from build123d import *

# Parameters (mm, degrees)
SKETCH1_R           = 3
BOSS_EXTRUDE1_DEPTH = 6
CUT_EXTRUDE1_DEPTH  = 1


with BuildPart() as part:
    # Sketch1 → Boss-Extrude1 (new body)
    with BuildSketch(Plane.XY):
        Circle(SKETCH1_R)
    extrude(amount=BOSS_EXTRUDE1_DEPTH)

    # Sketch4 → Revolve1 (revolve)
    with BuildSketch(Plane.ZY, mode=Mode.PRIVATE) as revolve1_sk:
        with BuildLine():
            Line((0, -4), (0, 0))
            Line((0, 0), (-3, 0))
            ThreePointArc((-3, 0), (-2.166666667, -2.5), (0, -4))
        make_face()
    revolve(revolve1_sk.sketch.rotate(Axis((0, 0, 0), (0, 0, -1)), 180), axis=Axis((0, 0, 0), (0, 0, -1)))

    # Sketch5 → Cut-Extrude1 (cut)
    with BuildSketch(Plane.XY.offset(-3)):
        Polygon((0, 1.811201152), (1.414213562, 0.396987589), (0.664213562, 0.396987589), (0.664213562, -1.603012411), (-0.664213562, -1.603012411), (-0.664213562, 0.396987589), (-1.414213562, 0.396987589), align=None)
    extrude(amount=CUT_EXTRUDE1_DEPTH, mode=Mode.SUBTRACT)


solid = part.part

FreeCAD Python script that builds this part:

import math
import FreeCAD as App
import Part
import Sketcher

doc = App.newDocument("Part")
body = doc.addObject("PartDesign::Body", "Body")

# Sketch on XY plane
sketch1 = doc.addObject("Sketcher::SketchObject", "Sketch")
body.addObject(sketch1)
sketch1.AttachmentSupport = (doc.XY_Plane, [""])
sketch1.MapMode = "FlatFace"
sketch1.addGeometry(Part.Circle(App.Vector(0, 0, 0), App.Vector(0, 0, 1), 3), False)
sketch1.addConstraint([
    Sketcher.Constraint("Coincident", 0, 3, -1, 1),
    Sketcher.Constraint("Diameter", 0, 6.0),
])
pad1 = doc.addObject("PartDesign::Pad", "Pad")
body.addObject(pad1)
pad1.Profile = sketch1
pad1.Length = 6

# Sketch on YZ plane
sketch2 = doc.addObject("Sketcher::SketchObject", "Sketch001")
body.addObject(sketch2)
sketch2.AttachmentSupport = (doc.YZ_Plane, [""])
sketch2.MapMode = "FlatFace"
sketch2.addGeometry([
    Part.LineSegment(App.Vector(-4, 0, 0), App.Vector(0, 0, 0)),
    Part.LineSegment(App.Vector(0, 0, 0), App.Vector(0, -3, 0)),
    Part.ArcOfCircle(Part.Circle(App.Vector(0, 1.2, 0), App.Vector(0, 0, 1), 4.2), math.radians(-164), math.radians(-90)),
], False)
sketch2.addConstraint([
    Sketcher.Constraint("Coincident", 0, 2, 1, 1),
    Sketcher.Constraint("Coincident", 1, 2, 2, 2),
    Sketcher.Constraint("Coincident", 2, 1, 0, 1),
    Sketcher.Constraint("Horizontal", 0),
    Sketcher.Constraint("Vertical", 1),
    Sketcher.Constraint("Coincident", 0, 2, -1, 1),
    Sketcher.Constraint("PointOnObject", 2, 3, -2),
    Sketcher.Constraint("DistanceX", 0, 1, 0, 2, 4.0),
    Sketcher.Constraint("DistanceY", 1, 2, 1, 1, 3.0),
])
revolution = doc.addObject("PartDesign::Revolution", "Revolution")
body.addObject(revolution)
revolution.Profile = sketch2
revolution.ReferenceAxis = (sketch2, ["V_Axis"])
revolution.Angle = 360

# Sketch on XY plane
sketch3 = doc.addObject("Sketcher::SketchObject", "Sketch002")
body.addObject(sketch3)
sketch3.AttachmentSupport = (doc.XY_Plane, [""])
sketch3.MapMode = "FlatFace"
sketch3.AttachmentOffset = App.Placement(App.Vector(0, 0, -3), App.Rotation())
sketch3.addGeometry([
    Part.LineSegment(App.Vector(1.4, 0.4, 0), App.Vector(0, 1.8, 0)),  # 0
    Part.LineSegment(App.Vector(0, 1.8, 0), App.Vector(-1.4, 0.4, 0)),  # 1
    Part.LineSegment(App.Vector(-1.4, 0.4, 0), App.Vector(-0.7, 0.4, 0)),  # 2
    Part.LineSegment(App.Vector(-0.7, 0.4, 0), App.Vector(-0.7, -1.6, 0)),  # 3
    Part.LineSegment(App.Vector(-0.7, -1.6, 0), App.Vector(0.7, -1.6, 0)),  # 4
    Part.LineSegment(App.Vector(0.7, -1.6, 0), App.Vector(0.7, 0.4, 0)),  # 5
    Part.LineSegment(App.Vector(0.7, 0.4, 0), App.Vector(1.4, 0.4, 0)),  # 6
], False)
sketch3.addConstraint([
    Sketcher.Constraint("Coincident", 0, 2, 1, 1),
    Sketcher.Constraint("Coincident", 1, 2, 2, 1),
    Sketcher.Constraint("Coincident", 2, 2, 3, 1),
    Sketcher.Constraint("Coincident", 3, 2, 4, 1),
    Sketcher.Constraint("Coincident", 4, 2, 5, 1),
    Sketcher.Constraint("Coincident", 5, 2, 6, 1),
    Sketcher.Constraint("Coincident", 6, 2, 0, 1),
    Sketcher.Constraint("Horizontal", 2),
    Sketcher.Constraint("Vertical", 3),
    Sketcher.Constraint("Horizontal", 4),
    Sketcher.Constraint("Vertical", 5),
    Sketcher.Constraint("Horizontal", 6),
    Sketcher.Constraint("Symmetric", 2, 2, 5, 2, -2),
    Sketcher.Constraint("PointOnObject", 0, 2, -2),
    Sketcher.Constraint("Perpendicular", 0, 1),
    Sketcher.Constraint("Equal", 2, 6),
    Sketcher.Constraint("DistanceY", 3, 2, 3, 1, 2.0),
    Sketcher.Constraint("Distance", 0, 2.0),
    Sketcher.Constraint("DistanceX", 2, 1, 2, 2, 0.75),
    Sketcher.Constraint("DistanceY", -1, 1, 0, 2, 1.811201),
])
pocket1 = doc.addObject("PartDesign::Pocket", "Pocket")
body.addObject(pocket1)
pocket1.Profile = sketch3
pocket1.Length = 1
pocket1.Reversed = True

doc.recompute()
